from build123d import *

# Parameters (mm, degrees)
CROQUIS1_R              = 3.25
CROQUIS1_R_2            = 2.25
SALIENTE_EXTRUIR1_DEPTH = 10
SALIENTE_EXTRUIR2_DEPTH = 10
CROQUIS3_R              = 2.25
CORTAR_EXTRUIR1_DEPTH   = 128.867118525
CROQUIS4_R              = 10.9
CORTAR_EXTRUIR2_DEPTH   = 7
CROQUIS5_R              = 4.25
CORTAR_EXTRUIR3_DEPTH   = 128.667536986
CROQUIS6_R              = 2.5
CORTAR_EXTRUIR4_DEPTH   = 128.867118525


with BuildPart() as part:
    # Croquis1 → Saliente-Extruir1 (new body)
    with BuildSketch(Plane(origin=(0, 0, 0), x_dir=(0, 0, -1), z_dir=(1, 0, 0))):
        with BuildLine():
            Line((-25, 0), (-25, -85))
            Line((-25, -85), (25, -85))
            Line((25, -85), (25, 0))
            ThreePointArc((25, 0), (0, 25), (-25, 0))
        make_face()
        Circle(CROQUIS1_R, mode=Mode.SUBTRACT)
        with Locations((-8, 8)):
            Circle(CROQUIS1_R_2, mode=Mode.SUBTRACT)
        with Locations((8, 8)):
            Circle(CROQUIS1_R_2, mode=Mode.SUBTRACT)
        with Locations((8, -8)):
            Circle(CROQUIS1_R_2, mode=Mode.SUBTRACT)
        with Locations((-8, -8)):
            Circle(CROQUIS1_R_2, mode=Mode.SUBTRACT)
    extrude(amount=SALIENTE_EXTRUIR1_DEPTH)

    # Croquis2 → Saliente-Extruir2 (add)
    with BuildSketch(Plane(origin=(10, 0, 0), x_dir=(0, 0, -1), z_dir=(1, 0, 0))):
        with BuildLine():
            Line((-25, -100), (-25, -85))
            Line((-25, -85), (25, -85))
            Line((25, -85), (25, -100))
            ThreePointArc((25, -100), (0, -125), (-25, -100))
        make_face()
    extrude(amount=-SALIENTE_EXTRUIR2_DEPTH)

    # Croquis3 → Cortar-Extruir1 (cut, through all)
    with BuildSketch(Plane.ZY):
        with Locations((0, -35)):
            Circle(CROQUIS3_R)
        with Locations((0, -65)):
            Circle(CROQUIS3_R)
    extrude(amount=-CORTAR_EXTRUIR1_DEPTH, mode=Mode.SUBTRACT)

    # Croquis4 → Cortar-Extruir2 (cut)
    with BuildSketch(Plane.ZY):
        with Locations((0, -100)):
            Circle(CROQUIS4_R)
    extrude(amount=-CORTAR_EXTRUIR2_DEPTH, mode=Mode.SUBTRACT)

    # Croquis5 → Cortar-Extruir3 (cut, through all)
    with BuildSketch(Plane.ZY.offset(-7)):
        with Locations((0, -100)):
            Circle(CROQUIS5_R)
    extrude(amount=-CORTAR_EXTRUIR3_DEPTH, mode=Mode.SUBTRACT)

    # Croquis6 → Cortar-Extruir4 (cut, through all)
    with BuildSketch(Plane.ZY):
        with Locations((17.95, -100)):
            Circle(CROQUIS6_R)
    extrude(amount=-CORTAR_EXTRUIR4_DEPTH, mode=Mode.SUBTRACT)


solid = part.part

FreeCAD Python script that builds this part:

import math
import FreeCAD as App
import Part
import Sketcher
Q = App.Units.Quantity

doc = App.newDocument("Part")
params = doc.addObject("Spreadsheet::Sheet", "Params")
for row, (alias, value) in enumerate([
    ("sketch1_radius", "25 mm"),
    ("sketch1_diameter", "4.5 mm"),
    ("sketch1_diameter2", "6.5 mm"),
    ("sketch1_width", "85 mm"),
    ("pad1_length", "10 mm"),
    ("sketch2_radius", "25 mm"),
    ("sketch2_width", "15 mm"),
    ("pad2_length", "10 mm"),
    ("sketch3_diameter", "4.5 mm"),
    ("sketch4_diameter", "21.8 mm"),
    ("pocket2_length", "7 mm"),
    ("sketch5_diameter", "8.5 mm"),
    ("sketch6_diameter", "5 mm"),
], start=1):
    params.set(f"A{row}", alias)
    params.set(f"B{row}", "=" + value)
    params.setAlias(f"B{row}", alias)

body = doc.addObject("PartDesign::Body", "Body")

# Sketch on YZ plane
sketch1 = body.newObject("Sketcher::SketchObject", "Sketch")
sketch1.AttachmentSupport = (doc.getObject("YZ_Plane"), [""])
sketch1.MapMode = "FlatFace"
sketch1.addGeometry([
    Part.LineSegment(App.Vector(0, 25, 0), App.Vector(-85, 25, 0)),  # 0
    Part.LineSegment(App.Vector(-85, 25, 0), App.Vector(-85, -25, 0)),  # 1
    Part.LineSegment(App.Vector(-85, -25, 0), App.Vector(0, -25, 0)),  # 2
    Part.ArcOfCircle(Part.Circle(App.Vector(0, 0, 0), App.Vector(0, 0, 1), 25), math.radians(-90), math.radians(90)),  # 3
    Part.Circle(App.Vector(-8, 8, 0), App.Vector(0, 0, 1), 2.25),  # 4
    Part.Circle(App.Vector(-8, -8, 0), App.Vector(0, 0, 1), 2.25),  # 5
    Part.Circle(App.Vector(8, 8, 0), App.Vector(0, 0, 1), 2.25),  # 6
    Part.Circle(App.Vector(0, 0, 0), App.Vector(0, 0, 1), 3.25),  # 7
    Part.Circle(App.Vector(8, -8, 0), App.Vector(0, 0, 1), 2.25),  # 8
], False)
sketch1.addConstraint([
    Sketcher.Constraint("Coincident", 0, 2, 1, 1),
    Sketcher.Constraint("Coincident", 1, 2, 2, 1),
    Sketcher.Constraint("Tangent", 2, 2, 3, 1),
    Sketcher.Constraint("Tangent", 3, 2, 0, 1),
    Sketcher.Constraint("Horizontal", 0),
    Sketcher.Constraint("Vertical", 1),
    Sketcher.Constraint("Horizontal", 2),
    Sketcher.Constraint("Coincident", 3, 3, -1, 1),
    Sketcher.Constraint("Coincident", 7, 3, -1, 1),
    Sketcher.Constraint("Equal", 4, 5),
    Sketcher.Constraint("Equal", 5, 6),
    Sketcher.Constraint("Equal", 6, 8),
    Sketcher.Constraint("Symmetric", 5, 3, 6, 3, -1, 1),
    Sketcher.Constraint("Symmetric", 4, 3, 8, 3, -1, 1),
    Sketcher.Constraint("Symmetric", 4, 3, 6, 3, -2),
    Sketcher.Constraint("Radius", 3, Q("25 mm")),
    Sketcher.Constraint("Diameter", 4, Q("4.5 mm")),
    Sketcher.Constraint("Diameter", 7, Q("6.5 mm")),
    Sketcher.Constraint("DistanceX", 0, 2, 0, 1, Q("85 mm")),
    Sketcher.Constraint("DistanceX", 4, 3, -1, 1, Q("8 mm")),
    Sketcher.Constraint("DistanceY", -1, 1, 4, 3, Q("8 mm")),
])
sketch1.setExpression("Constraints[15]", "Params.sketch1_radius")
sketch1.setExpression("Constraints[16]", "Params.sketch1_diameter")
sketch1.setExpression("Constraints[17]", "Params.sketch1_diameter2")
sketch1.setExpression("Constraints[18]", "Params.sketch1_width")
pad1 = body.newObject("PartDesign::Pad", "Pad")
pad1.Profile = sketch1
pad1.setExpression("Length", "Params.pad1_length")

# Sketch on YZ plane
sketch2 = body.newObject("Sketcher::SketchObject", "Sketch001")
sketch2.AttachmentSupport = (doc.getObject("YZ_Plane"), [""])
sketch2.MapMode = "FlatFace"
sketch2.AttachmentOffset = App.Placement(App.Vector(0, 0, 10), App.Rotation())
sketch2.addGeometry([
    Part.LineSegment(App.Vector(-85, 25, 0), App.Vector(-100, 25, 0)),
    Part.ArcOfCircle(Part.Circle(App.Vector(-100, 0, 0), App.Vector(0, 0, 1), 25), math.radians(90), math.radians(270)),
    Part.LineSegment(App.Vector(-100, -25, 0), App.Vector(-85, -25, 0)),
    Part.LineSegment(App.Vector(-85, -25, 0), App.Vector(-85, 25, 0)),
], False)
sketch2.addConstraint([
    Sketcher.Constraint("Tangent", 0, 2, 1, 1),
    Sketcher.Constraint("Tangent", 1, 2, 2, 1),
    Sketcher.Constraint("Coincident", 2, 2, 3, 1),
    Sketcher.Constraint("Coincident", 3, 2, 0, 1),
    Sketcher.Constraint("Horizontal", 0),
    Sketcher.Constraint("Horizontal", 2),
    Sketcher.Constraint("Vertical", 3),
    Sketcher.Constraint("PointOnObject", 1, 3, -1),
    Sketcher.Constraint("Radius", 1, Q("25 mm")),
    Sketcher.Constraint("DistanceX", 0, 2, 0, 1, Q("15 mm")),
    Sketcher.Constraint("DistanceX", 1, 3, -1, 1, Q("100 mm")),
])
sketch2.setExpression("Constraints[8]", "Params.sketch2_radius")
sketch2.setExpression("Constraints[9]", "Params.sketch2_width")
pad2 = body.newObject("PartDesign::Pad", "Pad001")
pad2.Profile = sketch2
pad2.setExpression("Length", "Params.pad2_length")
pad2.Reversed = True

# Sketch on YZ plane
sketch3 = body.newObject("Sketcher::SketchObject", "Sketch002")
sketch3.AttachmentSupport = (doc.getObject("YZ_Plane"), [""])
sketch3.MapMode = "FlatFace"
sketch3.addGeometry([
    Part.Circle(App.Vector(-35, 0, 0), App.Vector(0, 0, 1), 2.25),
    Part.Circle(App.Vector(-65, 0, 0), App.Vector(0, 0, 1), 2.25),
], False)
sketch3.addConstraint([
    Sketcher.Constraint("Equal", 0, 1),
    Sketcher.Constraint("PointOnObject", 0, 3, -1),
    Sketcher.Constraint("PointOnObject", 1, 3, -1),
    Sketcher.Constraint("Diameter", 0, Q("4.5 mm")),
    Sketcher.Constraint("DistanceX", 0, 3, -1, 1, Q("35 mm")),
    Sketcher.Constraint("DistanceX", 1, 3, -1, 1, Q("65 mm")),
])
sketch3.setExpression("Constraints[3]", "Params.sketch3_diameter")
pocket1 = body.newObject("PartDesign::Pocket", "Pocket")
pocket1.Profile = sketch3
pocket1.Type = "ThroughAll"
pocket1.Reversed = True

# Sketch on YZ plane
sketch4 = body.newObject("Sketcher::SketchObject", "Sketch003")
sketch4.AttachmentSupport = (doc.getObject("YZ_Plane"), [""])
sketch4.MapMode = "FlatFace"
sketch4.addGeometry(Part.Circle(App.Vector(-100, 0, 0), App.Vector(0, 0, 1), 10.9), False)
sketch4.addConstraint([
    Sketcher.Constraint("PointOnObject", 0, 3, -1),
    Sketcher.Constraint("Diameter", 0, Q("21.8 mm")),
    Sketcher.Constraint("DistanceX", 0, 3, -1, 1, Q("100 mm")),
])
sketch4.setExpression("Constraints[1]", "Params.sketch4_diameter")
pocket2 = body.newObject("PartDesign::Pocket", "Pocket001")
pocket2.Profile = sketch4
pocket2.setExpression("Length", "Params.pocket2_length")
pocket2.Reversed = True

# Sketch on YZ plane
sketch5 = body.newObject("Sketcher::SketchObject", "Sketch004")
sketch5.AttachmentSupport = (doc.getObject("YZ_Plane"), [""])
sketch5.MapMode = "FlatFace"
sketch5.AttachmentOffset = App.Placement(App.Vector(0, 0, 7), App.Rotation())
sketch5.addGeometry(Part.Circle(App.Vector(-100, 0, 0), App.Vector(0, 0, 1), 4.25), False)
sketch5.addConstraint([
    Sketcher.Constraint("PointOnObject", 0, 3, -1),
    Sketcher.Constraint("Diameter", 0, Q("8.5 mm")),
    Sketcher.Constraint("DistanceX", 0, 3, -1, 1, Q("100 mm")),
])
sketch5.setExpression("Constraints[1]", "Params.sketch5_diameter")
pocket3 = body.newObject("PartDesign::Pocket", "Pocket002")
pocket3.Profile = sketch5
pocket3.Type = "ThroughAll"
pocket3.Reversed = True

# Sketch on YZ plane
sketch6 = body.newObject("Sketcher::SketchObject", "Sketch005")
sketch6.AttachmentSupport = (doc.getObject("YZ_Plane"), [""])
sketch6.MapMode = "FlatFace"
sketch6.addGeometry(Part.Circle(App.Vector(-100, 17.95, 0), App.Vector(0, 0, 1), 2.5), False)
sketch6.addConstraint([
    Sketcher.Constraint("Diameter", 0, Q("5 mm")),
    Sketcher.Constraint("DistanceX", 0, 3, -1, 1, Q("100 mm")),
    Sketcher.Constraint("DistanceY", -1, 1, 0, 3, Q("17.95 mm")),
])
sketch6.setExpression("Constraints[0]", "Params.sketch6_diameter")
pocket4 = body.newObject("PartDesign::Pocket", "Pocket003")
pocket4.Profile = sketch6
pocket4.Type = "ThroughAll"
pocket4.Reversed = True

doc.recompute()
